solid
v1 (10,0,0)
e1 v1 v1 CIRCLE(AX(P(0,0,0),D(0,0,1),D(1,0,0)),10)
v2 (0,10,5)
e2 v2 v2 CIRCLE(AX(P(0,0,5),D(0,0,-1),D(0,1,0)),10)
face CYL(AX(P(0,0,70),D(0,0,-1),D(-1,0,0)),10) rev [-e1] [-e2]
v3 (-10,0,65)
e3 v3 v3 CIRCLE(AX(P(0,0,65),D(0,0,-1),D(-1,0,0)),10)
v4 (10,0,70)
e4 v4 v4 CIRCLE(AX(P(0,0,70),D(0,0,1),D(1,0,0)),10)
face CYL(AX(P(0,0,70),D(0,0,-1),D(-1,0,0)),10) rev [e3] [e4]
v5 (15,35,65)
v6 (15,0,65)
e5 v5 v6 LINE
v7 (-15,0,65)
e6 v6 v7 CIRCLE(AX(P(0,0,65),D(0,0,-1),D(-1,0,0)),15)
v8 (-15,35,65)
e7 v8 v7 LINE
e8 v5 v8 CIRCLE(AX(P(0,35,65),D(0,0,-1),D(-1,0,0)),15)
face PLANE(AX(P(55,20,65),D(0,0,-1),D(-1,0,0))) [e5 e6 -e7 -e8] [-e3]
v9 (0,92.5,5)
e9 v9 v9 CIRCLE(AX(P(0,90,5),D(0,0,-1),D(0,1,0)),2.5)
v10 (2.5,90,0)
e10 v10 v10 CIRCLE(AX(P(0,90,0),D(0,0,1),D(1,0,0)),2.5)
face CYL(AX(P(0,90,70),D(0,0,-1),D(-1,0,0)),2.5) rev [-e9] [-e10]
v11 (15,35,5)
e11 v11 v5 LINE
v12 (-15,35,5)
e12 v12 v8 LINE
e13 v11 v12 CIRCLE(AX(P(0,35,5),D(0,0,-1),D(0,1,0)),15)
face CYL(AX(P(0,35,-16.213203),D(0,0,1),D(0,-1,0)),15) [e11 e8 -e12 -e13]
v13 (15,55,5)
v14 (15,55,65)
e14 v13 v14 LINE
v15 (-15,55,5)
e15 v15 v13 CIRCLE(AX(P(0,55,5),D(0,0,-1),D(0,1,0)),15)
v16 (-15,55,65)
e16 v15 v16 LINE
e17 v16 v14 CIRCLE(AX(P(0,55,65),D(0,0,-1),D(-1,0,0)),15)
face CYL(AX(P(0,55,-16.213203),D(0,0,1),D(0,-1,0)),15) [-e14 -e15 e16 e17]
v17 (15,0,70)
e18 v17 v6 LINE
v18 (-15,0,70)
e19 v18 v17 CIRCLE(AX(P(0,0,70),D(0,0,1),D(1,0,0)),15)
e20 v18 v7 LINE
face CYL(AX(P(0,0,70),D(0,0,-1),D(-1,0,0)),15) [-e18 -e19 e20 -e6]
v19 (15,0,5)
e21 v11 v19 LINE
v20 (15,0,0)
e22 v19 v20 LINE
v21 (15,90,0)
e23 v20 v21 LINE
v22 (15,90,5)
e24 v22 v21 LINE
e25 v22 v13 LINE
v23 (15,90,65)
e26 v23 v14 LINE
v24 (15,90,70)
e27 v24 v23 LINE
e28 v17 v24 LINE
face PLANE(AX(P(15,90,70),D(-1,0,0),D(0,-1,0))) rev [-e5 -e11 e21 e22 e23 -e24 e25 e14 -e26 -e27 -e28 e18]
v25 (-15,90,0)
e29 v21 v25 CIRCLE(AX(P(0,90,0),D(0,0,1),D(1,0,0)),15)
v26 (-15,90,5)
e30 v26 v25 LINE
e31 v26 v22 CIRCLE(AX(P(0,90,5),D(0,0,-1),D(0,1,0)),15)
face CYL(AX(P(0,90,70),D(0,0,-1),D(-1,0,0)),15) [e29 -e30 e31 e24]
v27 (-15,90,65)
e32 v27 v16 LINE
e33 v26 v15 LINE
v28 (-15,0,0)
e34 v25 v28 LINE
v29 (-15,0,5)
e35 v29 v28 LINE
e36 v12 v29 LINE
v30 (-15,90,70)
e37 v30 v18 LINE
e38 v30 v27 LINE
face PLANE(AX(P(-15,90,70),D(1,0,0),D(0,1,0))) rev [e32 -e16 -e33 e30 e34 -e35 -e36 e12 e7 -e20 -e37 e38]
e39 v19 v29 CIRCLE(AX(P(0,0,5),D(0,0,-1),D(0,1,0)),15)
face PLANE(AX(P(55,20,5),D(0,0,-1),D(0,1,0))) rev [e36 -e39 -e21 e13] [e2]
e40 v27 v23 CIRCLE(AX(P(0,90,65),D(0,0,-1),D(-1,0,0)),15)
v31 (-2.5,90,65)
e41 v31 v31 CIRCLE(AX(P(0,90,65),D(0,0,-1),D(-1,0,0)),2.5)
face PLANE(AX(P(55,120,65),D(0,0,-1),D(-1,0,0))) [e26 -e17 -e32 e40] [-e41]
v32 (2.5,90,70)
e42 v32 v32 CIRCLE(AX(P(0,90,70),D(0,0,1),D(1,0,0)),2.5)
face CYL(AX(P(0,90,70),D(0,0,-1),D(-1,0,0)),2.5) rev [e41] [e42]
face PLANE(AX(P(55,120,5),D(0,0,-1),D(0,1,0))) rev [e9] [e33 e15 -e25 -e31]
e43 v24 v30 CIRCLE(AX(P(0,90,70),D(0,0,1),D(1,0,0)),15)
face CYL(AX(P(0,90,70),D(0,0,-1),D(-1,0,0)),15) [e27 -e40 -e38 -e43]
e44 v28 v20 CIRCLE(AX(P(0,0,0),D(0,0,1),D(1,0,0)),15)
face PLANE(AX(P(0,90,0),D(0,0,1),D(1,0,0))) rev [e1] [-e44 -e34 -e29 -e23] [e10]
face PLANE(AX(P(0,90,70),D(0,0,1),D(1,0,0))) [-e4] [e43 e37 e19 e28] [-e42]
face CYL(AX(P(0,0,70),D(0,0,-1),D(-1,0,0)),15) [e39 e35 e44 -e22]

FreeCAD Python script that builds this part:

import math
import FreeCAD as App
import Part
import Sketcher
from FreeCAD import Vector

doc = App.newDocument("Part")
body = doc.addObject("PartDesign::Body", "Body")

sketch1 = body.newObject("Sketcher::SketchObject", "Sketch")
sketch1.AttachmentSupport = (doc.getObject("XY_Plane"), [""])
sketch1.MapMode = "FlatFace"
sketch1.addGeometry([
    Part.LineSegment(Vector(-15, 90, 0), Vector(-15, 0, 0)),
    Part.ArcOfCircle(Part.Circle(Vector(0, 0, 0), Vector(0, 0, 1), 15), math.radians(180), math.radians(360)),
    Part.LineSegment(Vector(15, 0, 0), Vector(15, 90, 0)),
    Part.ArcOfCircle(Part.Circle(Vector(0, 90, 0), Vector(0, 0, 1), 15), math.radians(0), math.radians(180)),
    Part.Circle(Vector(0, 0, 0), Vector(0, 0, 1), 10),
    Part.Circle(Vector(0, 90, 0), Vector(0, 0, 1), 2.5),
], False)
sketch1.addConstraint([
    Sketcher.Constraint("Tangent", 0, 2, 1, 1),
    Sketcher.Constraint("Tangent", 1, 2, 2, 1),
    Sketcher.Constraint("Tangent", 2, 2, 3, 1),
    Sketcher.Constraint("Tangent", 3, 2, 0, 1),
    Sketcher.Constraint("Vertical", 0),
    Sketcher.Constraint("Vertical", 2),
    Sketcher.Constraint("Coincident", 1, 3, -1, 1),
    Sketcher.Constraint("Coincident", 4, 3, -1, 1),
    Sketcher.Constraint("Coincident", 5, 3, 3, 3),
    Sketcher.Constraint("Diameter", 4, 20.0),
    Sketcher.Constraint("Diameter", 5, 5.0),
    Sketcher.Constraint("Radius", 1, 15.0),
    Sketcher.Constraint("DistanceY", 0, 2, 0, 1, 90.0),
])
pad1 = body.newObject("PartDesign::Pad", "Pad")
pad1.Profile = sketch1
pad1.Length = 70

sketch2 = body.newObject("Sketcher::SketchObject", "Sketch001")
sketch2.AttachmentSupport = (doc.getObject("YZ_Plane"), [""])
sketch2.MapMode = "FlatFace"
sketch2.AttachmentOffset = App.Placement(Vector(0, 0, -15), App.Rotation())
sketch2.addGeometry([
    Part.LineSegment(Vector(20, 5, 0), Vector(-20, 5, 0)),
    Part.LineSegment(Vector(-20, 5, 0), Vector(-20, 65, 0)),
    Part.LineSegment(Vector(-20, 65, 0), Vector(20, 65, 0)),
    Part.LineSegment(Vector(20, 65, 0), Vector(20, 5, 0)),
    Part.LineSegment(Vector(120, 5, 0), Vector(70, 5, 0)),
    Part.LineSegment(Vector(70, 5, 0), Vector(70, 65, 0)),
    Part.LineSegment(Vector(70, 65, 0), Vector(120, 65, 0)),
    Part.LineSegment(Vector(120, 65, 0), Vector(120, 5, 0)),
], False)
sketch2.addConstraint([
    Sketcher.Constraint("Coincident", 0, 2, 1, 1),
    Sketcher.Constraint("Coincident", 1, 2, 2, 1),
    Sketcher.Constraint("Coincident", 2, 2, 3, 1),
    Sketcher.Constraint("Coincident", 3, 2, 0, 1),
    Sketcher.Constraint("Coincident", 4, 2, 5, 1),
    Sketcher.Constraint("Coincident", 5, 2, 6, 1),
    Sketcher.Constraint("Coincident", 6, 2, 7, 1),
    Sketcher.Constraint("Coincident", 7, 2, 4, 1),
    Sketcher.Constraint("Horizontal", 0),
    Sketcher.Constraint("Vertical", 1),
    Sketcher.Constraint("Horizontal", 2),
    Sketcher.Constraint("Vertical", 3),
    Sketcher.Constraint("Horizontal", 4),
    Sketcher.Constraint("Vertical", 5),
    Sketcher.Constraint("Horizontal", 6),
    Sketcher.Constraint("Vertical", 7),
    Sketcher.Constraint("Horizontal", 3, 2, 4, 2),
    Sketcher.Constraint("Horizontal", 2, 2, 5, 2),
    Sketcher.Constraint("DistanceX", 0, 2, 0, 1, 40.0),
    Sketcher.Constraint("DistanceX", 4, 2, 4, 1, 50.0),
    Sketcher.Constraint("DistanceY", 1, 1, 1, 2, 60.0),
    Sketcher.Constraint("DistanceX", 0, 2, -1, 1, 20.0),
    Sketcher.Constraint("DistanceY", -1, 1, 0, 2, 5.0),
    Sketcher.Constraint("DistanceX", -1, 1, 4, 2, 70.0),
])
pocket1 = body.newObject("PartDesign::Pocket", "Pocket")
pocket1.Profile = sketch2
pocket1.Length = 70
pocket1.Reversed = True

sketch3 = body.newObject("Sketcher::SketchObject", "Sketch002")
sketch3.AttachmentSupport = (doc.getObject("XY_Plane"), [""])
sketch3.MapMode = "FlatFace"
sketch3.AttachmentOffset = App.Placement(Vector(0, 0, 65), App.Rotation())
sketch3.addGeometry([
    Part.LineSegment(Vector(-15, 55, 0), Vector(-15, 70, 0)),
    Part.LineSegment(Vector(-15, 70, 0), Vector(0, 70, 0)),
    Part.ArcOfCircle(Part.Circle(Vector(0, 55, 0), Vector(0, 0, 1), 15), math.radians(90), math.radians(180)),
    Part.ArcOfCircle(Part.Circle(Vector(0, 55, 0), Vector(0, 0, 1), 15), math.radians(0), math.radians(90)),
    Part.LineSegment(Vector(0, 70, 0), Vector(15, 70, 0)),
    Part.LineSegment(Vector(15, 70, 0), Vector(15, 55, 0)),
    Part.ArcOfCircle(Part.Circle(Vector(0, 35, 0), Vector(0, 0, 1), 15), math.radians(-90), math.radians(0)),
    Part.LineSegment(Vector(15, 35, 0), Vector(15, 20, 0)),
    Part.LineSegment(Vector(15, 20, 0), Vector(0, 20, 0)),
    Part.ArcOfCircle(Part.Circle(Vector(0, 35, 0), Vector(0, 0, 1), 15), math.radians(180), math.radians(270)),
    Part.LineSegment(Vector(0, 20, 0), Vector(-15, 20, 0)),
    Part.LineSegment(Vector(-15, 20, 0), Vector(-15, 35, 0)),
], False)
sketch3.addConstraint([
    Sketcher.Constraint("Coincident", 0, 2, 1, 1),
    Sketcher.Constraint("Tangent", 1, 2, 2, 1),
    Sketcher.Constraint("Tangent", 2, 2, 0, 1),
    Sketcher.Constraint("Tangent", 3, 2, 4, 1),
    Sketcher.Constraint("Coincident", 4, 2, 5, 1),
    Sketcher.Constraint("Tangent", 5, 2, 3, 1),
    Sketcher.Constraint("Tangent", 6, 2, 7, 1),
    Sketcher.Constraint("Coincident", 7, 2, 8, 1),
    Sketcher.Constraint("Tangent", 8, 2, 6, 1),
    Sketcher.Constraint("Tangent", 9, 2, 10, 1),
    Sketcher.Constraint("Coincident", 10, 2, 11, 1),
    Sketcher.Constraint("Tangent", 11, 2, 9, 1),
    Sketcher.Constraint("Vertical", 0),
    Sketcher.Constraint("Horizontal", 1),
    Sketcher.Constraint("Horizontal", 4),
    Sketcher.Constraint("Vertical", 5),
    Sketcher.Constraint("Vertical", 7),
    Sketcher.Constraint("Horizontal", 8),
    Sketcher.Constraint("Horizontal", 10),
    Sketcher.Constraint("Vertical", 11),
    Sketcher.Constraint("Coincident", 3, 3, 2, 3),
    Sketcher.Constraint("Coincident", 9, 3, 6, 3),
    Sketcher.Constraint("Equal", 2, 3),
    Sketcher.Constraint("Equal", 3, 6),
    Sketcher.Constraint("Equal", 6, 9),
    Sketcher.Constraint("PointOnObject", 2, 3, -2),
    Sketcher.Constraint("PointOnObject", 6, 3, -2),
    Sketcher.Constraint("Radius", 2, 15.0),
    Sketcher.Constraint("DistanceY", -1, 1, 2, 3, 55.0),
    Sketcher.Constraint("DistanceY", -1, 1, 6, 3, 35.0),
])
pocket2 = body.newObject("PartDesign::Pocket", "Pocket001")
pocket2.Profile = sketch3
pocket2.Length = 60

doc.recompute()
